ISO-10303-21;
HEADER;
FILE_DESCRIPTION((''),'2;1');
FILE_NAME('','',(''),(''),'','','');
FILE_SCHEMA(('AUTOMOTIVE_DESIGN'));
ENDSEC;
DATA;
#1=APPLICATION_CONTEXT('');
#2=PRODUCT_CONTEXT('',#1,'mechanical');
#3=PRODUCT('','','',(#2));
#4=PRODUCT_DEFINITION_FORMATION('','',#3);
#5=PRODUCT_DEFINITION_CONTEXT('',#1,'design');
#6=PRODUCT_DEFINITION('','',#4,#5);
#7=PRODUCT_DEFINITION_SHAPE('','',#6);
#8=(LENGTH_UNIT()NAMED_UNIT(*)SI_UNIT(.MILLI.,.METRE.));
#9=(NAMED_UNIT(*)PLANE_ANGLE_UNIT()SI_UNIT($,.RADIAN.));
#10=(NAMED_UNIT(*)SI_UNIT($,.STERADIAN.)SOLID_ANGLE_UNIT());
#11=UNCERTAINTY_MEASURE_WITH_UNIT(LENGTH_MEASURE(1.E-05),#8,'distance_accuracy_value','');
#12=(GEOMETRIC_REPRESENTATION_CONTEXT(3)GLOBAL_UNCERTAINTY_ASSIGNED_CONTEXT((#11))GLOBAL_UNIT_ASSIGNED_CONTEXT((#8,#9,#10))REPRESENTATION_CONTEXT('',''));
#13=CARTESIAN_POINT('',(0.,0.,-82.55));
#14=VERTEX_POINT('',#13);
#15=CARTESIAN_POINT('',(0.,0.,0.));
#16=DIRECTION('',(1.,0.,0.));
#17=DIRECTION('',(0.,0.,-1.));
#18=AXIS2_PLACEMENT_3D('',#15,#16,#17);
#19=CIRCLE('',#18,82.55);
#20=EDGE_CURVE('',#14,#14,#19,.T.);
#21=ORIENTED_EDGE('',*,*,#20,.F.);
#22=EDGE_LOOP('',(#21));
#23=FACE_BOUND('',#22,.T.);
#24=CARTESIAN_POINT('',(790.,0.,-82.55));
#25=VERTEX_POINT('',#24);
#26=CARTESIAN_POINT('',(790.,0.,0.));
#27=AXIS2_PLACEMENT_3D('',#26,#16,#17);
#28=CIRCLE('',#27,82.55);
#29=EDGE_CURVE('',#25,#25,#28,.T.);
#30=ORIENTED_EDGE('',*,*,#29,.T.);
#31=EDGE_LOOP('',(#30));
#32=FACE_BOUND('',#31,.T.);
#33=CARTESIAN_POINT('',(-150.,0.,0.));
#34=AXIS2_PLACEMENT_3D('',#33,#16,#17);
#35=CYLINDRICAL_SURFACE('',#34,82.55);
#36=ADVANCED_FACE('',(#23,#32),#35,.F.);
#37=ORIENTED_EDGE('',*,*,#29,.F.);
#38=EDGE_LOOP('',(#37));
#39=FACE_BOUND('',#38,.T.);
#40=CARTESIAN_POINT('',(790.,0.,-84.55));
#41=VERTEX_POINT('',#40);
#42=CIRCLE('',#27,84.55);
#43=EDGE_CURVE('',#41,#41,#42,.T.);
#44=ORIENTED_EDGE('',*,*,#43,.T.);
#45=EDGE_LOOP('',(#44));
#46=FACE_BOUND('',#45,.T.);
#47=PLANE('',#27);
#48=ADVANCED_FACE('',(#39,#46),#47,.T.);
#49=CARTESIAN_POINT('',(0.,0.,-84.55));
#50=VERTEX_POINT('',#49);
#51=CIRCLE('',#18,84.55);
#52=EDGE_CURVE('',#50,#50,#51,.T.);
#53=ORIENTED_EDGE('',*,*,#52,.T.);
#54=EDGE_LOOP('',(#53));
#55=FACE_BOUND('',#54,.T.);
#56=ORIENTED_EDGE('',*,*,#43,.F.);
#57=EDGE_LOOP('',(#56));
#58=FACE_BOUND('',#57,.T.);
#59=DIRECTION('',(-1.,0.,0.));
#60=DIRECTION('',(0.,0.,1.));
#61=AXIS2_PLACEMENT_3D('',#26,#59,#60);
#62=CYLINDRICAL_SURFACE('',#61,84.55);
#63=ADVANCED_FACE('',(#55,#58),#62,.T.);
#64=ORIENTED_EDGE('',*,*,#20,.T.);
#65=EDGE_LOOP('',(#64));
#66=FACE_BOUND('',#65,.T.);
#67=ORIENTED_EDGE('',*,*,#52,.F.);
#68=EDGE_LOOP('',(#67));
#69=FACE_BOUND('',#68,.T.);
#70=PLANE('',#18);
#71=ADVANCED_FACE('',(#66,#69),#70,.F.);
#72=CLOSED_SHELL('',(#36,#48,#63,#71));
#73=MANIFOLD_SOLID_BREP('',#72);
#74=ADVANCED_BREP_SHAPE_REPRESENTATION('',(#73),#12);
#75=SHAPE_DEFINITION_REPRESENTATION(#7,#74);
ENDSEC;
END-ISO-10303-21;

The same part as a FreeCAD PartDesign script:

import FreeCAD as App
import Part
import Sketcher
from FreeCAD import Vector
Q = App.Units.Quantity

doc = App.newDocument("Part")
body = doc.addObject("PartDesign::Body", "Body")

sketch1 = body.newObject("Sketcher::SketchObject", "Sketch")
sketch1.AttachmentSupport = (doc.getObject("YZ_Plane"), [""])
sketch1.MapMode = "FlatFace"
sketch1.addGeometry(Part.Circle(Vector(0, 0, 0), Vector(0, 0, 1), 85), False)
sketch1.addConstraint(Sketcher.Constraint("Coincident", 0, 3, -1, 1))
sketch1.addConstraint(Sketcher.Constraint("Diameter", 0, Q("169.1 mm")))
pad1 = body.newObject("PartDesign::Pad", "Pad")
pad1.Profile = sketch1
pad1.Length = 790

sketch2 = body.newObject("Sketcher::SketchObject", "Sketch001")
sketch2.AttachmentSupport = (doc.getObject("YZ_Plane"), [""])
sketch2.MapMode = "FlatFace"
sketch2.AttachmentOffset = App.Placement(Vector(0, 0, 790), App.Rotation())
sketch2.addGeometry(Part.Circle(Vector(0, 0, 0), Vector(0, 0, 1), 83), False)
sketch2.addConstraint(Sketcher.Constraint("Coincident", 0, 3, -1, 1))
sketch2.addConstraint(Sketcher.Constraint("Diameter", 0, Q("165.1 mm")))
pocket1 = body.newObject("PartDesign::Pocket", "Pocket")
pocket1.Profile = sketch2
pocket1.Length = 940

doc.recompute()
